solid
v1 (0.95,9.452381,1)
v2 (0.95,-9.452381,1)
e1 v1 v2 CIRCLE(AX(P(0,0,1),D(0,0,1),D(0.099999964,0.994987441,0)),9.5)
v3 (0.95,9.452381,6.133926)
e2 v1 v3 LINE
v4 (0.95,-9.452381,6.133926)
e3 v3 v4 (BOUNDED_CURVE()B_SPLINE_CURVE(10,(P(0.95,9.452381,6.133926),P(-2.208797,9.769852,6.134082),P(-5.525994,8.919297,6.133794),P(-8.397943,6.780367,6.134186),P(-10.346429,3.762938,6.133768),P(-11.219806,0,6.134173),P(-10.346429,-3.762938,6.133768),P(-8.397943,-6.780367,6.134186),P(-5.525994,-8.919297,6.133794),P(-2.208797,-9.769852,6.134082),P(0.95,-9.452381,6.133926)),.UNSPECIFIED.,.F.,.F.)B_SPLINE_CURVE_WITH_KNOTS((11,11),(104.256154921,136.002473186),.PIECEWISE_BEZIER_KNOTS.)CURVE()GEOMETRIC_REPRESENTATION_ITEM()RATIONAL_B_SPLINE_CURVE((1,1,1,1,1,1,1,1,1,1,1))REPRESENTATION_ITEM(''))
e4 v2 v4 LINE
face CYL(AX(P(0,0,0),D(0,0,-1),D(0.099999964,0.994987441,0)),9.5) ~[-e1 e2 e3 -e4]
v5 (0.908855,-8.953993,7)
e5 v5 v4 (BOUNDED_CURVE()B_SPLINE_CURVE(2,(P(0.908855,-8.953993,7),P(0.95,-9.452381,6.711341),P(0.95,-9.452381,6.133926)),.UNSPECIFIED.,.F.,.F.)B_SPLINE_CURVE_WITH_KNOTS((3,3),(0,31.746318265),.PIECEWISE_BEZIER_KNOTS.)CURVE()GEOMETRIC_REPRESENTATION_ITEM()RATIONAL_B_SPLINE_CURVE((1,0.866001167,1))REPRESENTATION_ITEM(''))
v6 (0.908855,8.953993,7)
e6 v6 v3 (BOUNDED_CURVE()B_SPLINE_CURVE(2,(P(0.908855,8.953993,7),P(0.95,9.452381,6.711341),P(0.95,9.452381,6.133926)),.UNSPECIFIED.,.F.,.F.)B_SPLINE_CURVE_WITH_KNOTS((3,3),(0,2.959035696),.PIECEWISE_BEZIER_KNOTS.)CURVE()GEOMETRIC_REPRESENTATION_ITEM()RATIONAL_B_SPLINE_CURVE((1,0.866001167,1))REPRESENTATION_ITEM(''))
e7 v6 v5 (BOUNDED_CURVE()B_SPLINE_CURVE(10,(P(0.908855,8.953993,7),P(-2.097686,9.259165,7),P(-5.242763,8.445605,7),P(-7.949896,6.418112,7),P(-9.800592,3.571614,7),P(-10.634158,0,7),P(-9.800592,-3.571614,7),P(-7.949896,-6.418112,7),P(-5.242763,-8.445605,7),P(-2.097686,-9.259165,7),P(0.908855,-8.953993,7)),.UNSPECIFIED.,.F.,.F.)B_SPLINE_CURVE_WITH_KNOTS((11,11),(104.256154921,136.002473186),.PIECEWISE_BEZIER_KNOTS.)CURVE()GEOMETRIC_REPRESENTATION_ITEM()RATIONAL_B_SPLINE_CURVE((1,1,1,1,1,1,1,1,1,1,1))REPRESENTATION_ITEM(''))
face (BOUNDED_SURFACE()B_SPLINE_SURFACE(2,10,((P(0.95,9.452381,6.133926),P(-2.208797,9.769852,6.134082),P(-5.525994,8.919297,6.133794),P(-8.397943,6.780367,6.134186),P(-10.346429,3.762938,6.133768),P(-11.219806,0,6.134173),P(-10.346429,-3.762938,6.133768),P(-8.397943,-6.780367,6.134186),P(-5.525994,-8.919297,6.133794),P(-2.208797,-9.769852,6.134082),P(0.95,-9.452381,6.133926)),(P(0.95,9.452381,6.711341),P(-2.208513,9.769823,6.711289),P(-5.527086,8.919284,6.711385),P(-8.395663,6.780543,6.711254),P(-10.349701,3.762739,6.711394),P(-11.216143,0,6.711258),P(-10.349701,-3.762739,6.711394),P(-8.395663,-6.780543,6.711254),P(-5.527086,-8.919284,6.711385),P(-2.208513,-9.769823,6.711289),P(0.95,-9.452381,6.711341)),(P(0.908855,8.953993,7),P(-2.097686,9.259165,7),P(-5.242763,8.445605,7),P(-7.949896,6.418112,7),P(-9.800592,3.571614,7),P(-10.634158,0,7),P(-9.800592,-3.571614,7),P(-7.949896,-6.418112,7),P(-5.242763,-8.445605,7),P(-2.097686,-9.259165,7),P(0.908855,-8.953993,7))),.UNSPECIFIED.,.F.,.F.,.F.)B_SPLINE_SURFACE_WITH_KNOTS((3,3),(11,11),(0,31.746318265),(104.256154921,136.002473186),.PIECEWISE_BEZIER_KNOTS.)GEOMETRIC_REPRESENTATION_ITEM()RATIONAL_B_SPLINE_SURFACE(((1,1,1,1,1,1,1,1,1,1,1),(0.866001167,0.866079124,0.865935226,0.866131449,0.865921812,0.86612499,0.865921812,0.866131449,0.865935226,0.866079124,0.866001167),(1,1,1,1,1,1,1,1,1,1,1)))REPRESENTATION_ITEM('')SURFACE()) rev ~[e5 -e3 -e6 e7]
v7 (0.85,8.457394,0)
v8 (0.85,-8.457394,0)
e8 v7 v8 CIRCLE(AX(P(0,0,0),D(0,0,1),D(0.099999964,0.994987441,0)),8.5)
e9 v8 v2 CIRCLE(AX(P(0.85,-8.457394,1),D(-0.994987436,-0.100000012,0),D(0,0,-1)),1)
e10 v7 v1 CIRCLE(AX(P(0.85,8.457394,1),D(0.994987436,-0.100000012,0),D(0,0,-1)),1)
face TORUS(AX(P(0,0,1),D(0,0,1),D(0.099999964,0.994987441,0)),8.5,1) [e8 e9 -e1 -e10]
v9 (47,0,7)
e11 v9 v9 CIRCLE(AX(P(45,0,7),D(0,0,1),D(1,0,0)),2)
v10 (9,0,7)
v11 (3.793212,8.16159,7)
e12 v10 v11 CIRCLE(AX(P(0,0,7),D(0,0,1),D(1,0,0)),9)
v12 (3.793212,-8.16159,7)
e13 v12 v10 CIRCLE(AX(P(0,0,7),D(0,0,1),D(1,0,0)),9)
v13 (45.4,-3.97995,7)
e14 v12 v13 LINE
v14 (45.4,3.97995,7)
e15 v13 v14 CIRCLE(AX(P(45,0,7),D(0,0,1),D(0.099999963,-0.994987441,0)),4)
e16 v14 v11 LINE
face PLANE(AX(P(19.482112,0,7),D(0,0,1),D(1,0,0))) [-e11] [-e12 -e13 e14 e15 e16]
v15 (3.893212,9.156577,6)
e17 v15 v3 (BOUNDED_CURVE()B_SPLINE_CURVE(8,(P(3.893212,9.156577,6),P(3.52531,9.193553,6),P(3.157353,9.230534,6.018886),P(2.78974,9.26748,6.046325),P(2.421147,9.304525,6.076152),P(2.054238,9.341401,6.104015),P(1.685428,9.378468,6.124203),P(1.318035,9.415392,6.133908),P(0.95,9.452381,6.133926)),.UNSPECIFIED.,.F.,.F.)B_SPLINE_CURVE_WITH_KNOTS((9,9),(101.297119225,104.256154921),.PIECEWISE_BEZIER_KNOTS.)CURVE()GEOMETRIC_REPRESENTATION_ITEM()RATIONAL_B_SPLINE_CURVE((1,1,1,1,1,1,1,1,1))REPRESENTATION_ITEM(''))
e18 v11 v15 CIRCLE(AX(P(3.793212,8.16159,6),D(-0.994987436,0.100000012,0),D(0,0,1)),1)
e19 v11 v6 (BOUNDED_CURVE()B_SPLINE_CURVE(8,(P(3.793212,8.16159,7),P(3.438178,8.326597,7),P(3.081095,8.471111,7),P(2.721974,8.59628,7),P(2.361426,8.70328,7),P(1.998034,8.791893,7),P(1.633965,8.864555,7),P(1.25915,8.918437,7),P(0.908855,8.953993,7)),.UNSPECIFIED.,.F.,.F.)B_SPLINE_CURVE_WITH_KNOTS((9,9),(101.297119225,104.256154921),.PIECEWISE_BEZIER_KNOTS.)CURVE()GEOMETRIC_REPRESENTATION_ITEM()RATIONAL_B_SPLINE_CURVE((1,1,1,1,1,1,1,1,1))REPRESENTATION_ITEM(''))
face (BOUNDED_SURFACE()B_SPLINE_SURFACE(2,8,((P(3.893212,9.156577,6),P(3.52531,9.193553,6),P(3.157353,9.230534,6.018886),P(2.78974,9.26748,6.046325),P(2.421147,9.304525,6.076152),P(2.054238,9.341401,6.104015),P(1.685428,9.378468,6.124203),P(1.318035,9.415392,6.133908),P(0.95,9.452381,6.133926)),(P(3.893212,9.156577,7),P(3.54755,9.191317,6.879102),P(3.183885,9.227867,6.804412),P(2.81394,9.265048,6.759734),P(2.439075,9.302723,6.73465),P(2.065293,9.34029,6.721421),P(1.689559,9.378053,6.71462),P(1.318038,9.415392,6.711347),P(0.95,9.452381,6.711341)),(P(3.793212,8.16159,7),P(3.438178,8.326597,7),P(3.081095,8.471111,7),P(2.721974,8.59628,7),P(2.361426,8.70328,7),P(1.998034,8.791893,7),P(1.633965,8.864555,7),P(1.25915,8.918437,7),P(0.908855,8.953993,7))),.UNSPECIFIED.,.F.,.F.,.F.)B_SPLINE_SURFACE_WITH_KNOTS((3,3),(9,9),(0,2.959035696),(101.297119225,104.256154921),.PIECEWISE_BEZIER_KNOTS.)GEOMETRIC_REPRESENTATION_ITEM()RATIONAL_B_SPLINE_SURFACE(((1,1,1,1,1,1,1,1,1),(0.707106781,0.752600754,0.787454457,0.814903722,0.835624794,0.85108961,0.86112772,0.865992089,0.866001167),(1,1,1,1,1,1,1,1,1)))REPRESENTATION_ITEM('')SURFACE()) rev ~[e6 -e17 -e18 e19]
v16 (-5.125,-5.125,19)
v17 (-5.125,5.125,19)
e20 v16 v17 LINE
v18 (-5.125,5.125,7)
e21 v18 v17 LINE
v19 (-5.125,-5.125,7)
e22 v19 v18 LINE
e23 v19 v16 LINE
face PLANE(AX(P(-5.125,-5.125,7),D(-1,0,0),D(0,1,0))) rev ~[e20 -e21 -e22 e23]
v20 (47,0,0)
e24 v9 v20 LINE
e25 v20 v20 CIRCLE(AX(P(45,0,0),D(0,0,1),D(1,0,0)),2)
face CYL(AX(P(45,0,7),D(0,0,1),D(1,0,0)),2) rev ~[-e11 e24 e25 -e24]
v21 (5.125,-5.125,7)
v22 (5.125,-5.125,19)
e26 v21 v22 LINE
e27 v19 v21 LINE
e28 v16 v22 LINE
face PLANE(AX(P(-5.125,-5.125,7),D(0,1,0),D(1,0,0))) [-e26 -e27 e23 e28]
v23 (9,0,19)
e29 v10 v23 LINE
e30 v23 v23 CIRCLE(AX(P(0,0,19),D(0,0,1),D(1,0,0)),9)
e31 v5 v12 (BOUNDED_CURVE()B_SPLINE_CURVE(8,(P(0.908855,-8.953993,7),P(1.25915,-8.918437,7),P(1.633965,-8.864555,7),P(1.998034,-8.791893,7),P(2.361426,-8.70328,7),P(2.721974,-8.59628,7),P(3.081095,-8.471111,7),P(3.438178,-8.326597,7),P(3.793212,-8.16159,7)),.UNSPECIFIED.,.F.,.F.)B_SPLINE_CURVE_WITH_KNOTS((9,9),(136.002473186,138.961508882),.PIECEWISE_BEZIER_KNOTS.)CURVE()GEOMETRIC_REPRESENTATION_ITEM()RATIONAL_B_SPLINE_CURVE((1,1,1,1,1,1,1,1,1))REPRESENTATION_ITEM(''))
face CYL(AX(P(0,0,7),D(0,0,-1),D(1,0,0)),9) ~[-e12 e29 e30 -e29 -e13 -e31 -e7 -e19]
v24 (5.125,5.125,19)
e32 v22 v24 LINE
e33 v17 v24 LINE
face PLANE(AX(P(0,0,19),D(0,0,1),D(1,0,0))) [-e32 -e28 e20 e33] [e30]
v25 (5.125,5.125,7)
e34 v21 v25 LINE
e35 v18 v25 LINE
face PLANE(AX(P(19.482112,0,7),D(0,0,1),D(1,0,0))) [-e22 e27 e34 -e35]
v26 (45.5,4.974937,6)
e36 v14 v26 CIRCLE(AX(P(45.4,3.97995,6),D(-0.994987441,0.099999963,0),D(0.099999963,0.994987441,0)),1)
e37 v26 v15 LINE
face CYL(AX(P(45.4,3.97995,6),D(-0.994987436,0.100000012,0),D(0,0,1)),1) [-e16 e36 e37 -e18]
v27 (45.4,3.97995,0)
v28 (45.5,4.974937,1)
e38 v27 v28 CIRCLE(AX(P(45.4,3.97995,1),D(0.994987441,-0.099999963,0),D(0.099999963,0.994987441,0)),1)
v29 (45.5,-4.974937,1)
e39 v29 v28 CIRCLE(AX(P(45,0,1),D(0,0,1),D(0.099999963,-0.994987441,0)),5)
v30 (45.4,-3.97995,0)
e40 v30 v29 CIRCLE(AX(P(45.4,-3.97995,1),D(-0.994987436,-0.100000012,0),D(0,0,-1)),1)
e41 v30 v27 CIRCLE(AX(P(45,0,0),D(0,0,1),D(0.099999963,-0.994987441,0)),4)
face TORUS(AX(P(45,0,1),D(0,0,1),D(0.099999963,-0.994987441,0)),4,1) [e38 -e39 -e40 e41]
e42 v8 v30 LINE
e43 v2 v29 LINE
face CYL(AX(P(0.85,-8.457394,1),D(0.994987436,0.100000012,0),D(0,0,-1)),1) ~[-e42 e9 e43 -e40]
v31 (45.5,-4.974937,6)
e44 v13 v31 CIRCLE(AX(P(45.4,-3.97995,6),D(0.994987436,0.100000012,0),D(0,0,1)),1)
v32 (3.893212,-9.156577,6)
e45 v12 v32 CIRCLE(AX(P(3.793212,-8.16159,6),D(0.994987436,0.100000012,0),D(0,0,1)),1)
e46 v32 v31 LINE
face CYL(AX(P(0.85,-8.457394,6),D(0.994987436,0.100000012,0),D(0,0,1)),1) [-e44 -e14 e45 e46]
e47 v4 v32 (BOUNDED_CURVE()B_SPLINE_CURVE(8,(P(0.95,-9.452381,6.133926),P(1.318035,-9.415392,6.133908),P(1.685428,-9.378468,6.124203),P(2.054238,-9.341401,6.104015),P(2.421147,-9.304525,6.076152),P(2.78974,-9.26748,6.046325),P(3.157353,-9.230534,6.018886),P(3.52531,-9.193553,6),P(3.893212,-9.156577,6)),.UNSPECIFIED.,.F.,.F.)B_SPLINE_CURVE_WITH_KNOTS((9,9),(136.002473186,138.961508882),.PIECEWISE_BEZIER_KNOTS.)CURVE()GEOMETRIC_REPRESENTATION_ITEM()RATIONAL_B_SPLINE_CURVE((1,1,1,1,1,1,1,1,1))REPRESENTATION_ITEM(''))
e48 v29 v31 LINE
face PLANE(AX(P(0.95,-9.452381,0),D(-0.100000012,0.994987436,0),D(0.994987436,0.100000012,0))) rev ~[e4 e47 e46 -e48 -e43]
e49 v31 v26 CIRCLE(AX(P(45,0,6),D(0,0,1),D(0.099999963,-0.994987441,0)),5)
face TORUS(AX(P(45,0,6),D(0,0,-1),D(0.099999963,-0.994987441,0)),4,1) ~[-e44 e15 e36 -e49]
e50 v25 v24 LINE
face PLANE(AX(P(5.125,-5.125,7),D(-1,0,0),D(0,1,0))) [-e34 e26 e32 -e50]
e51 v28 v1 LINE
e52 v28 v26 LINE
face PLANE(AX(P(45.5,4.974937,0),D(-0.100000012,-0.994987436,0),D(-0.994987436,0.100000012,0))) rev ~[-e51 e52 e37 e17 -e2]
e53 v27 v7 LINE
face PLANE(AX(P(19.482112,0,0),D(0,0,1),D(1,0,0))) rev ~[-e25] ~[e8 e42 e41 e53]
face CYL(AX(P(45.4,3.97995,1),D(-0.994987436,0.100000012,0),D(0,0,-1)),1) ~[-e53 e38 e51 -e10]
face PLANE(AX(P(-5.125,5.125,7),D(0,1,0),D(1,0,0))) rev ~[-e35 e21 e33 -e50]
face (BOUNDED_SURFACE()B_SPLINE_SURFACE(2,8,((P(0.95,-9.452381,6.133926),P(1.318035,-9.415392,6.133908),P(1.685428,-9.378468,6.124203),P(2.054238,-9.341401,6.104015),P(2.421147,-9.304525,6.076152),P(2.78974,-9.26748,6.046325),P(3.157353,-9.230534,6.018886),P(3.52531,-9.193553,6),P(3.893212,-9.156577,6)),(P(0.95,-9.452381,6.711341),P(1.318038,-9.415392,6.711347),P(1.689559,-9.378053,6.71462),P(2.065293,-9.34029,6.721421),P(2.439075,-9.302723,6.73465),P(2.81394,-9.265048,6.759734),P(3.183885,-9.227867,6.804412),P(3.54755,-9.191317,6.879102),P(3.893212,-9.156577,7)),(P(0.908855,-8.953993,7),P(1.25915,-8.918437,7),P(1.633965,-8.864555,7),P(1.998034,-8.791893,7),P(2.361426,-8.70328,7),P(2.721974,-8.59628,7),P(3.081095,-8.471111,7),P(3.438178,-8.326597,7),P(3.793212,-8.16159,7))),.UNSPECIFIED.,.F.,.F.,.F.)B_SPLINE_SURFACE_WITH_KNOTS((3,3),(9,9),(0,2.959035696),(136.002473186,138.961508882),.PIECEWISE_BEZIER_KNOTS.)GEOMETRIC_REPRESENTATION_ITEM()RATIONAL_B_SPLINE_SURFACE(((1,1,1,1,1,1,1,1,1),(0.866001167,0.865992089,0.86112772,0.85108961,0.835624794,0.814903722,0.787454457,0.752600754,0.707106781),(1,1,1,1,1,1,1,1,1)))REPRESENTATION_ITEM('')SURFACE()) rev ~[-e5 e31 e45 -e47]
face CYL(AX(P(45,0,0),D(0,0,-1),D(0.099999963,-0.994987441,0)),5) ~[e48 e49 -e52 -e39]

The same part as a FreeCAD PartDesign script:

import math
import FreeCAD as App
import Part
import Sketcher
from FreeCAD import Vector
Q = App.Units.Quantity


def edges_at(feature, points):
    """Names of the edges that pass closest to the given points."""
    edges = feature.Shape.Edges
    near = lambda p: min(range(len(edges)), key=lambda i: edges[i].distToShape(Part.Vertex(*p))[0])
    return sorted({f"Edge{near(p) + 1}" for p in points})


def add_polygon(sketch, points):
    """Adds a closed chain of lines whose ends are joined by coincident constraints."""
    first, n = sketch.GeometryCount, len(points)
    for a, b in zip(points, points[1:] + points[:1]):
        sketch.addGeometry(Part.LineSegment(App.Vector(*a, 0), App.Vector(*b, 0)), False)
    for i in range(n):
        sketch.addConstraint(Sketcher.Constraint("Coincident", first + i, 2, first + (i + 1) % n, 1))

doc = App.newDocument("Part")
params = doc.addObject("Spreadsheet::Sheet", "Params")
for row, (alias, value) in enumerate([
    ("sketch1_radius", "5 mm"),
    ("sketch1_radius2", "9.5 mm"),
    ("pad1_length", "7 mm"),
    ("sketch2_diameter", "4 mm"),
    ("pocket1_length", "25 mm"),
    ("sketch3_diameter", "18 mm"),
    ("sketch3_width", "10.25 mm"),
    ("pad2_length", "12 mm"),
    ("fillet_radius", "1 mm"),
], start=1):
    params.set(f"A{row}", alias)
    params.set(f"B{row}", "=" + value)
    params.setAlias(f"B{row}", alias)

body = doc.addObject("PartDesign::Body", "Body")

sketch1 = body.newObject("Sketcher::SketchObject", "Sketch")
sketch1.AttachmentSupport = (doc.getObject("XY_Plane"), [""])
sketch1.MapMode = "FlatFace"
sketch1.addGeometry(Part.LineSegment(Vector(45.5, 5, 0), Vector(0.9, 9.5, 0)), False)
sketch1.addGeometry(Part.ArcOfCircle(Part.Circle(Vector(0, 0, 0), Vector(0, 0, 1), 9.5), math.radians(84), math.radians(276)), False)
sketch1.addGeometry(Part.LineSegment(Vector(0.9, -9.5, 0), Vector(45.5, -5, 0)), False)
sketch1.addGeometry(Part.ArcOfCircle(Part.Circle(Vector(45, 0, 0), Vector(0, 0, 1), 5), math.radians(-84), math.radians(84)), False)
sketch1.addConstraint(Sketcher.Constraint("Tangent", 0, 2, 1, 1))
sketch1.addConstraint(Sketcher.Constraint("Tangent", 1, 2, 2, 1))
sketch1.addConstraint(Sketcher.Constraint("Tangent", 2, 2, 3, 1))
sketch1.addConstraint(Sketcher.Constraint("Tangent", 3, 2, 0, 1))
sketch1.addConstraint(Sketcher.Constraint("Coincident", 1, 3, -1, 1))
sketch1.addConstraint(Sketcher.Constraint("PointOnObject", 3, 3, -1))
sketch1.addConstraint(Sketcher.Constraint("Radius", 3, Q("5 mm")))
sketch1.addConstraint(Sketcher.Constraint("Radius", 1, Q("9.5 mm")))
sketch1.addConstraint(Sketcher.Constraint("DistanceX", -1, 1, 3, 3, Q("45 mm")))
sketch1.setExpression("Constraints[6]", "Params.sketch1_radius")
sketch1.setExpression("Constraints[7]", "Params.sketch1_radius2")
pad1 = body.newObject("PartDesign::Pad", "Pad")
pad1.Profile = sketch1
pad1.setExpression("Length", "Params.pad1_length")

sketch2 = body.newObject("Sketcher::SketchObject", "Sketch001")
sketch2.AttachmentSupport = (doc.getObject("XY_Plane"), [""])
sketch2.MapMode = "FlatFace"
sketch2.AttachmentOffset = App.Placement(Vector(0, 0, 7), App.Rotation())
sketch2.addGeometry(Part.Circle(Vector(45, 0, 0), Vector(0, 0, 1), 2), False)
sketch2.addConstraint(Sketcher.Constraint("PointOnObject", 0, 3, -1))
sketch2.addConstraint(Sketcher.Constraint("Diameter", 0, Q("4 mm")))
sketch2.addConstraint(Sketcher.Constraint("DistanceX", -1, 1, 0, 3, Q("45 mm")))
sketch2.setExpression("Constraints[1]", "Params.sketch2_diameter")
pocket1 = body.newObject("PartDesign::Pocket", "Pocket")
pocket1.Profile = sketch2
pocket1.setExpression("Length", "Params.pocket1_length")

sketch3 = body.newObject("Sketcher::SketchObject", "Sketch002")
sketch3.AttachmentSupport = (doc.getObject("XY_Plane"), [""])
sketch3.MapMode = "FlatFace"
sketch3.AttachmentOffset = App.Placement(Vector(0, 0, 7), App.Rotation())
sketch3.addGeometry(Part.Circle(Vector(0, 0, 0), Vector(0, 0, 1), 9), False)
add_polygon(sketch3, [(5, -5), (-5, -5), (-5, 5), (5, 5)])
sketch3.addConstraint(Sketcher.Constraint("Horizontal", 1))
sketch3.addConstraint(Sketcher.Constraint("Vertical", 2))
sketch3.addConstraint(Sketcher.Constraint("Horizontal", 3))
sketch3.addConstraint(Sketcher.Constraint("Vertical", 4))
sketch3.addConstraint(Sketcher.Constraint("Coincident", 0, 3, -1, 1))
sketch3.addConstraint(Sketcher.Constraint("Symmetric", 1, 2, 3, 2, -1, 1))
sketch3.addConstraint(Sketcher.Constraint("Equal", 3, 2))
sketch3.addConstraint(Sketcher.Constraint("Diameter", 0, Q("18 mm")))
sketch3.addConstraint(Sketcher.Constraint("DistanceX", 1, 2, 1, 1, Q("10.25 mm")))
sketch3.setExpression("Constraints[11]", "Params.sketch3_diameter")
sketch3.setExpression("Constraints[12]", "Params.sketch3_width")
pad2 = body.newObject("PartDesign::Pad", "Pad001")
pad2.Profile = sketch3
pad2.setExpression("Length", "Params.pad2_length")
doc.recompute()

fillet = body.newObject("PartDesign::Fillet", "Fillet")
fillet.Base = (pad2, edges_at(pad2, [(23.225, -7.214, 0), (23.225, -7.214, 7)]))
fillet.setExpression("Radius", "Params.fillet_radius")

doc.recompute()
